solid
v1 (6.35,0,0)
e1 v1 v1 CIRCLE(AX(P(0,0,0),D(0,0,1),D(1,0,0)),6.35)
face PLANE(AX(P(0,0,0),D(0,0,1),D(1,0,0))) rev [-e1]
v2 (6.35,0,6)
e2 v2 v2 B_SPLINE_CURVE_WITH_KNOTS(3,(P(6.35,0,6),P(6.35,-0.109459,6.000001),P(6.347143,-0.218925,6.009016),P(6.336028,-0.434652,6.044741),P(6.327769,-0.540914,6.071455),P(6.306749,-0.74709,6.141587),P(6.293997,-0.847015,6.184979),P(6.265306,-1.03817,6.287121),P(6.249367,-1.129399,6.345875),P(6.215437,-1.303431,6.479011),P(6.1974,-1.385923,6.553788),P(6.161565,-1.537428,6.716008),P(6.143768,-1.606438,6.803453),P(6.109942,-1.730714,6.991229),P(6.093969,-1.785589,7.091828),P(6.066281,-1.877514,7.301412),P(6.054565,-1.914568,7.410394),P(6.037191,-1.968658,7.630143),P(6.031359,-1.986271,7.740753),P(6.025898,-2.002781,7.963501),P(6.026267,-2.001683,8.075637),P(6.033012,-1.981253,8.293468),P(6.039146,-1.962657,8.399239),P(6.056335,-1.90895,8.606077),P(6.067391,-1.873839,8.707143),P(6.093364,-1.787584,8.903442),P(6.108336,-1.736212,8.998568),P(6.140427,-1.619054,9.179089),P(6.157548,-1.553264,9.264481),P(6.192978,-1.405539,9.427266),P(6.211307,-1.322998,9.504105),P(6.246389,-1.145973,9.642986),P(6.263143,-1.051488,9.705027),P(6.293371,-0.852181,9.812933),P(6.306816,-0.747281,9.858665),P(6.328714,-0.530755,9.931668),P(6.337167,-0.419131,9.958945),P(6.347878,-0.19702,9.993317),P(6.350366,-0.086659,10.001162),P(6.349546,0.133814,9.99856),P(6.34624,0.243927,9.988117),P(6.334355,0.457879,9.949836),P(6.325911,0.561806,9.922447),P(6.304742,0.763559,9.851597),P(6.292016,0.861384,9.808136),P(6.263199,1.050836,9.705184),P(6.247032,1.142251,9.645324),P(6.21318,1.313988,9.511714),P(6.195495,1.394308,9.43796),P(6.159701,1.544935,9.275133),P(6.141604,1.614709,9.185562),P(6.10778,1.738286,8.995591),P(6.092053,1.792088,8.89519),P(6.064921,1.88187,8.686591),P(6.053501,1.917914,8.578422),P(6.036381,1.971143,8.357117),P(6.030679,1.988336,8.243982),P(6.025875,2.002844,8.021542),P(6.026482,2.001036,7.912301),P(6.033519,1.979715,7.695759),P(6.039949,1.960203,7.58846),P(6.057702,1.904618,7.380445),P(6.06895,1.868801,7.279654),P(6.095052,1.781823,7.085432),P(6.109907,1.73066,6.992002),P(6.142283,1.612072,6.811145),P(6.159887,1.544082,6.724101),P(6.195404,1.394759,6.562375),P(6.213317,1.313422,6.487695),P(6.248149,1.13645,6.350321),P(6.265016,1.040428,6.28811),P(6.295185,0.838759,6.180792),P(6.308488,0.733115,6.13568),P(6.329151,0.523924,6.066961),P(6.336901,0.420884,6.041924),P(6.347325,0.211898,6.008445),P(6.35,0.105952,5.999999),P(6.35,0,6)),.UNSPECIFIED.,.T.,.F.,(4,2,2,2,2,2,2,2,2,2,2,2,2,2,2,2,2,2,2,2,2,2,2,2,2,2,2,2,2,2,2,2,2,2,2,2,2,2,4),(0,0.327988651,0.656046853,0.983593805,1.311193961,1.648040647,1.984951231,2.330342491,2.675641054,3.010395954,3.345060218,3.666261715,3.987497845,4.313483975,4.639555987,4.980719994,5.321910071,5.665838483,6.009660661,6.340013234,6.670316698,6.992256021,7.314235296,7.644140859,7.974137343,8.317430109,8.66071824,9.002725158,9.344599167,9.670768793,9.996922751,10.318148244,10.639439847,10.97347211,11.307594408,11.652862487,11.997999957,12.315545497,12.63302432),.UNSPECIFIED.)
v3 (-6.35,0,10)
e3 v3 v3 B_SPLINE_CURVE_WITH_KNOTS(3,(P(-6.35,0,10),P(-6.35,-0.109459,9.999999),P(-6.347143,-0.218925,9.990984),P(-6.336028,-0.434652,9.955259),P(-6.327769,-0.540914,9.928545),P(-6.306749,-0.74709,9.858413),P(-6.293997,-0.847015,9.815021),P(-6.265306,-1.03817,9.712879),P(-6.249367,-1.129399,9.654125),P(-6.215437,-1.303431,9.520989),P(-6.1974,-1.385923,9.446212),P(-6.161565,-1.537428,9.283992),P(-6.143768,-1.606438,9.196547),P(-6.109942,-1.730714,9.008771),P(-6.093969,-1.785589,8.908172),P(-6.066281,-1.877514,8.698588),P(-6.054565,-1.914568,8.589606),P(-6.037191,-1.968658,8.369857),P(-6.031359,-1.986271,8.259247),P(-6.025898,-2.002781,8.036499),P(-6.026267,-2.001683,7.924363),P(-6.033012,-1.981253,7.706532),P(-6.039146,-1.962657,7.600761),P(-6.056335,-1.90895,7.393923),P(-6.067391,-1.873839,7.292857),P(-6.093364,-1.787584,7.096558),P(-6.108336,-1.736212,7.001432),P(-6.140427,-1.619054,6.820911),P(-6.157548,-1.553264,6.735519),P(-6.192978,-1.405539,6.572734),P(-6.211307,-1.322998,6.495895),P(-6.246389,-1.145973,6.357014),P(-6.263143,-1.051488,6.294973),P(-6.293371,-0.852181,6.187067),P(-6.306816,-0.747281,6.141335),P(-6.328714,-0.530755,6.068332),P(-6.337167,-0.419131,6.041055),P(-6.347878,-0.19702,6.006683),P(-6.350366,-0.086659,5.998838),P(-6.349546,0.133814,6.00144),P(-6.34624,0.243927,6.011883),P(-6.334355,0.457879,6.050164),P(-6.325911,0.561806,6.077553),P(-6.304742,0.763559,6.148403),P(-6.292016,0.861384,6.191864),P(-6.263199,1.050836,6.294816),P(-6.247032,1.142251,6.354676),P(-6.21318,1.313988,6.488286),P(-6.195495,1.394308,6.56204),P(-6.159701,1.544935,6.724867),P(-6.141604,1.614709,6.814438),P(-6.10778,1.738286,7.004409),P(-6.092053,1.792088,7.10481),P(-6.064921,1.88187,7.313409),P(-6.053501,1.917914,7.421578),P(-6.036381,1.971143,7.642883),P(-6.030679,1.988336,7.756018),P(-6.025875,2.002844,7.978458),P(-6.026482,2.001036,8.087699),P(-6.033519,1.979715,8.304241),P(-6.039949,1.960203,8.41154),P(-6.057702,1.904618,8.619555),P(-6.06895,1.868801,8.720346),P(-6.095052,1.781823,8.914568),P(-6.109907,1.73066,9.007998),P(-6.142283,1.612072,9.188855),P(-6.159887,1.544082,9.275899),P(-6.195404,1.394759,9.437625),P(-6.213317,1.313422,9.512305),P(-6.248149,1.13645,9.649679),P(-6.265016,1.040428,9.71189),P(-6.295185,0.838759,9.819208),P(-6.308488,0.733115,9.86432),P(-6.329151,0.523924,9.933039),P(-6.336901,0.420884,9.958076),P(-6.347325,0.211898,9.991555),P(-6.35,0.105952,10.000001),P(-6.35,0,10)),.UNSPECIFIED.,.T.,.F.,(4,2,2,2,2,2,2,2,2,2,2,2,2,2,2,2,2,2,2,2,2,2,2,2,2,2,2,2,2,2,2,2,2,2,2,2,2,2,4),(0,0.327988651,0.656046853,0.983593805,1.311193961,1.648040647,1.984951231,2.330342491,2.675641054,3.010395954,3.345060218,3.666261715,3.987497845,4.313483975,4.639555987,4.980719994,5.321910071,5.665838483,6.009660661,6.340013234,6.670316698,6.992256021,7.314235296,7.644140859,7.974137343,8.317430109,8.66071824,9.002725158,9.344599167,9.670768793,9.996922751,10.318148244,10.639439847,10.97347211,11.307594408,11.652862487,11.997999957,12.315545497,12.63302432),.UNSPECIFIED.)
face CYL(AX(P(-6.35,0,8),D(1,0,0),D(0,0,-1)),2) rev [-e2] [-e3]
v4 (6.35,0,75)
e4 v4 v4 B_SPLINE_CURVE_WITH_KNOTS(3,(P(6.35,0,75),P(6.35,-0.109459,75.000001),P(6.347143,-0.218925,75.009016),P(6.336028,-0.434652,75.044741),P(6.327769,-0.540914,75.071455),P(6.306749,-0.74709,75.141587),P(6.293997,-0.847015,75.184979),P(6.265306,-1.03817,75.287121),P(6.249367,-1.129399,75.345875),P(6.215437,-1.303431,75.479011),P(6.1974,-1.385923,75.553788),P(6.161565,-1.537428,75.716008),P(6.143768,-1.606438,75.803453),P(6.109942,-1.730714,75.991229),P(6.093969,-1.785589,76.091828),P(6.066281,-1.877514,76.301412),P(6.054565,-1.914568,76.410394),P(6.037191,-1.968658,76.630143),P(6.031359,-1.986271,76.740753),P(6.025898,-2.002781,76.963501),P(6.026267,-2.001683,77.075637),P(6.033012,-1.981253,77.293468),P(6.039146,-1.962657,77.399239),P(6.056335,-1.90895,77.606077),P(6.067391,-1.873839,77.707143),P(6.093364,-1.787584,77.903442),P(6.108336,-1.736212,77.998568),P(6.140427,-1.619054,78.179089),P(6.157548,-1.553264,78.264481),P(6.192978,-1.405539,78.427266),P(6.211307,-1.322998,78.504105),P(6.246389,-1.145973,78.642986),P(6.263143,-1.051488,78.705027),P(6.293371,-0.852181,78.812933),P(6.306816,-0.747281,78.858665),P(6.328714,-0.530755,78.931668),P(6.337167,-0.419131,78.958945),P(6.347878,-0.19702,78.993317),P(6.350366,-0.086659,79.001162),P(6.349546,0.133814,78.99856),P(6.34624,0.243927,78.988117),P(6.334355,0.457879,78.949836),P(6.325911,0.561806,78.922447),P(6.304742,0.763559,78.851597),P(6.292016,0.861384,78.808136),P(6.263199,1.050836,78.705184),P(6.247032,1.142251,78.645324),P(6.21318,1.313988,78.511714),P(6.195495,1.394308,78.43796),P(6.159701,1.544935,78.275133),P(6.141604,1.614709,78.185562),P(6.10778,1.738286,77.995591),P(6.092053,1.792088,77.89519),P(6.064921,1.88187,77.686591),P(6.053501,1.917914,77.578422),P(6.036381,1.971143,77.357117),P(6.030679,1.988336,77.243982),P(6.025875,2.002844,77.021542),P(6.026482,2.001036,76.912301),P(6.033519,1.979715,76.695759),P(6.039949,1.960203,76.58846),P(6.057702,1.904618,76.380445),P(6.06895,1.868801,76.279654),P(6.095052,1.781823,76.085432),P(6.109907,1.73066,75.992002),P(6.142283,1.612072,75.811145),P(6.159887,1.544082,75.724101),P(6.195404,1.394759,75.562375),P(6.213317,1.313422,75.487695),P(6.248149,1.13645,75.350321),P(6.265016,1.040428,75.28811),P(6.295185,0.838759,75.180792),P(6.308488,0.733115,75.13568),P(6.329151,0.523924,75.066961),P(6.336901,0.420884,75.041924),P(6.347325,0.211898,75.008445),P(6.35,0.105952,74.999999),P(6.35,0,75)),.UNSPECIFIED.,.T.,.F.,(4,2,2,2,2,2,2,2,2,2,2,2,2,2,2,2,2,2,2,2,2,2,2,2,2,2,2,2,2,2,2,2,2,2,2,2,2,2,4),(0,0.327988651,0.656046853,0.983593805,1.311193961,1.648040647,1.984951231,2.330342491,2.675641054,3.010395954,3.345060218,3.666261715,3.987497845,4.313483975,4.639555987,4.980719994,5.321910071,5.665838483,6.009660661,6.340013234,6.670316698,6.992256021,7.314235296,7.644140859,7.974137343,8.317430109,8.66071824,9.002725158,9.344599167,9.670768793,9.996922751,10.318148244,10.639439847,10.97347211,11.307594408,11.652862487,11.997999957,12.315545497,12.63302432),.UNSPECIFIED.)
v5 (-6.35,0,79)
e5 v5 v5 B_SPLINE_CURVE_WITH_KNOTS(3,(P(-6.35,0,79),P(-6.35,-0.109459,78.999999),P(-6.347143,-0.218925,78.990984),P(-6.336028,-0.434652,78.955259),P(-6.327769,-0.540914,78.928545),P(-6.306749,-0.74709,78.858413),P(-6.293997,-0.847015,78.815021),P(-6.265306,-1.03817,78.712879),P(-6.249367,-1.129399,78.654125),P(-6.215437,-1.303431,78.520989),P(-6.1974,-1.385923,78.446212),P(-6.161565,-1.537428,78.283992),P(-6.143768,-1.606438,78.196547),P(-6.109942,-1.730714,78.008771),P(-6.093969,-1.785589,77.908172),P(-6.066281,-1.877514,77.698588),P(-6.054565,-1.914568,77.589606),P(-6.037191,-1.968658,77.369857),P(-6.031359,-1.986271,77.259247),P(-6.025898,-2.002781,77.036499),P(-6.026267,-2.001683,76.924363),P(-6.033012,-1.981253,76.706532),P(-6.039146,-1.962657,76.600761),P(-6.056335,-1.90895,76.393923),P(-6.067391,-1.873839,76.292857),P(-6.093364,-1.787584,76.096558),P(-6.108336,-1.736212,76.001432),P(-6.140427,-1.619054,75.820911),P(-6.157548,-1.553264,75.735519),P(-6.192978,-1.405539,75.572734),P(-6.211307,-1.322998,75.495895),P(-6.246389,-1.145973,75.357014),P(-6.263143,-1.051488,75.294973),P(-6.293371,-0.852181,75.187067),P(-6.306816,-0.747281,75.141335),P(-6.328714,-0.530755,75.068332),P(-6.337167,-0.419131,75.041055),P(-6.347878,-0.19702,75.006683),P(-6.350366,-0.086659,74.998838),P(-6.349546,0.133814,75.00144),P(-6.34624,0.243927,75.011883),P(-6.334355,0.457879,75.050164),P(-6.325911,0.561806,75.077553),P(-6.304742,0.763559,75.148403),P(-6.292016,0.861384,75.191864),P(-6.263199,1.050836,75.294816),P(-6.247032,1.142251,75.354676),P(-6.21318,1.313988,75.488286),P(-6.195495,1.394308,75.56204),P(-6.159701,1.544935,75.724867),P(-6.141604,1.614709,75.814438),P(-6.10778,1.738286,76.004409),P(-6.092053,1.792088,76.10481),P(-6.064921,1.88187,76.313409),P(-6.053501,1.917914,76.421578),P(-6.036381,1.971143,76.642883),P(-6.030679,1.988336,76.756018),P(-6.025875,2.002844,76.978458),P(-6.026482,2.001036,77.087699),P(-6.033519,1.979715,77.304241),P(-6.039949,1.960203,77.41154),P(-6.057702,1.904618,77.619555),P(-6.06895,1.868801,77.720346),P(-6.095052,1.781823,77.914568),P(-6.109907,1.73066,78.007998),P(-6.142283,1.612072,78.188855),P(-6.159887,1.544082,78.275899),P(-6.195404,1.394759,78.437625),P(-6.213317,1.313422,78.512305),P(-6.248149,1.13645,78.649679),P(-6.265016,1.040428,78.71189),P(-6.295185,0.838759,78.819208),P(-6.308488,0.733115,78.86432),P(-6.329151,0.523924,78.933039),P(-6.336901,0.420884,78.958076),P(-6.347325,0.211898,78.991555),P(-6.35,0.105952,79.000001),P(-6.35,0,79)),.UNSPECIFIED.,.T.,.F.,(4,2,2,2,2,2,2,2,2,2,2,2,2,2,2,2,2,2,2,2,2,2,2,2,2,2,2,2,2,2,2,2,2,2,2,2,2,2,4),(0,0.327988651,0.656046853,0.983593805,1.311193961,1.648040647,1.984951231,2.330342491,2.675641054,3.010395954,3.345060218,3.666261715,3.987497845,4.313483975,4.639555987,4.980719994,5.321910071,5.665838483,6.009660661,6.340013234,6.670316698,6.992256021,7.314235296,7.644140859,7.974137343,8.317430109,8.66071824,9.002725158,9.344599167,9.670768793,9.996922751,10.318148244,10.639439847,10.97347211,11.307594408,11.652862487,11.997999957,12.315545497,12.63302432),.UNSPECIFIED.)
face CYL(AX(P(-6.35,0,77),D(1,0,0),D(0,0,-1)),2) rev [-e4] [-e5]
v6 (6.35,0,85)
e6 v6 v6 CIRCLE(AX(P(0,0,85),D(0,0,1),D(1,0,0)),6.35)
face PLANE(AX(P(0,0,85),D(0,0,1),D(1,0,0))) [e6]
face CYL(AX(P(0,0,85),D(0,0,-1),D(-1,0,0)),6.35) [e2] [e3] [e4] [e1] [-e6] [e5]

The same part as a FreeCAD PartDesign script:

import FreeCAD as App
import Part
import Sketcher
Q = App.Units.Quantity

doc = App.newDocument("Part")
body = doc.addObject("PartDesign::Body", "Body")

sketch1 = body.newObject("Sketcher::SketchObject", "Sketch")
sketch1.AttachmentSupport = (doc.getObject("XY_Plane"), [""])
sketch1.MapMode = "FlatFace"
sketch1.addGeometry(Part.Circle(App.Vector(0, 0, 0), App.Vector(0, 0, 1), 6), False)
sketch1.addConstraint(Sketcher.Constraint("Coincident", 0, 3, -1, 1))
sketch1.addConstraint(Sketcher.Constraint("Diameter", 0, Q("12.7 mm")))
pad1 = body.newObject("PartDesign::Pad", "Pad")
pad1.Profile = sketch1
pad1.Length = 85

sketch2 = body.newObject("Sketcher::SketchObject", "Sketch001")
sketch2.AttachmentSupport = (doc.getObject("YZ_Plane"), [""])
sketch2.MapMode = "FlatFace"
sketch2.addGeometry(Part.Circle(App.Vector(0, 8, 0), App.Vector(0, 0, 1), 2), False)
sketch2.addGeometry(Part.Circle(App.Vector(0, 77, 0), App.Vector(0, 0, 1), 2), False)
sketch2.addConstraint(Sketcher.Constraint("Equal", 0, 1))
sketch2.addConstraint(Sketcher.Constraint("PointOnObject", 0, 3, -2))
sketch2.addConstraint(Sketcher.Constraint("PointOnObject", 1, 3, -2))
sketch2.addConstraint(Sketcher.Constraint("Diameter", 0, Q("4 mm")))
sketch2.addConstraint(Sketcher.Constraint("DistanceY", -1, 1, 0, 3, Q("8 mm")))
sketch2.addConstraint(Sketcher.Constraint("DistanceY", -1, 1, 1, 3, Q("77 mm")))
pocket1 = body.newObject("PartDesign::Pocket", "Pocket")
pocket1.Profile = sketch2
pocket1.Type = "ThroughAll"
pocket1.Midplane = True

doc.recompute()
